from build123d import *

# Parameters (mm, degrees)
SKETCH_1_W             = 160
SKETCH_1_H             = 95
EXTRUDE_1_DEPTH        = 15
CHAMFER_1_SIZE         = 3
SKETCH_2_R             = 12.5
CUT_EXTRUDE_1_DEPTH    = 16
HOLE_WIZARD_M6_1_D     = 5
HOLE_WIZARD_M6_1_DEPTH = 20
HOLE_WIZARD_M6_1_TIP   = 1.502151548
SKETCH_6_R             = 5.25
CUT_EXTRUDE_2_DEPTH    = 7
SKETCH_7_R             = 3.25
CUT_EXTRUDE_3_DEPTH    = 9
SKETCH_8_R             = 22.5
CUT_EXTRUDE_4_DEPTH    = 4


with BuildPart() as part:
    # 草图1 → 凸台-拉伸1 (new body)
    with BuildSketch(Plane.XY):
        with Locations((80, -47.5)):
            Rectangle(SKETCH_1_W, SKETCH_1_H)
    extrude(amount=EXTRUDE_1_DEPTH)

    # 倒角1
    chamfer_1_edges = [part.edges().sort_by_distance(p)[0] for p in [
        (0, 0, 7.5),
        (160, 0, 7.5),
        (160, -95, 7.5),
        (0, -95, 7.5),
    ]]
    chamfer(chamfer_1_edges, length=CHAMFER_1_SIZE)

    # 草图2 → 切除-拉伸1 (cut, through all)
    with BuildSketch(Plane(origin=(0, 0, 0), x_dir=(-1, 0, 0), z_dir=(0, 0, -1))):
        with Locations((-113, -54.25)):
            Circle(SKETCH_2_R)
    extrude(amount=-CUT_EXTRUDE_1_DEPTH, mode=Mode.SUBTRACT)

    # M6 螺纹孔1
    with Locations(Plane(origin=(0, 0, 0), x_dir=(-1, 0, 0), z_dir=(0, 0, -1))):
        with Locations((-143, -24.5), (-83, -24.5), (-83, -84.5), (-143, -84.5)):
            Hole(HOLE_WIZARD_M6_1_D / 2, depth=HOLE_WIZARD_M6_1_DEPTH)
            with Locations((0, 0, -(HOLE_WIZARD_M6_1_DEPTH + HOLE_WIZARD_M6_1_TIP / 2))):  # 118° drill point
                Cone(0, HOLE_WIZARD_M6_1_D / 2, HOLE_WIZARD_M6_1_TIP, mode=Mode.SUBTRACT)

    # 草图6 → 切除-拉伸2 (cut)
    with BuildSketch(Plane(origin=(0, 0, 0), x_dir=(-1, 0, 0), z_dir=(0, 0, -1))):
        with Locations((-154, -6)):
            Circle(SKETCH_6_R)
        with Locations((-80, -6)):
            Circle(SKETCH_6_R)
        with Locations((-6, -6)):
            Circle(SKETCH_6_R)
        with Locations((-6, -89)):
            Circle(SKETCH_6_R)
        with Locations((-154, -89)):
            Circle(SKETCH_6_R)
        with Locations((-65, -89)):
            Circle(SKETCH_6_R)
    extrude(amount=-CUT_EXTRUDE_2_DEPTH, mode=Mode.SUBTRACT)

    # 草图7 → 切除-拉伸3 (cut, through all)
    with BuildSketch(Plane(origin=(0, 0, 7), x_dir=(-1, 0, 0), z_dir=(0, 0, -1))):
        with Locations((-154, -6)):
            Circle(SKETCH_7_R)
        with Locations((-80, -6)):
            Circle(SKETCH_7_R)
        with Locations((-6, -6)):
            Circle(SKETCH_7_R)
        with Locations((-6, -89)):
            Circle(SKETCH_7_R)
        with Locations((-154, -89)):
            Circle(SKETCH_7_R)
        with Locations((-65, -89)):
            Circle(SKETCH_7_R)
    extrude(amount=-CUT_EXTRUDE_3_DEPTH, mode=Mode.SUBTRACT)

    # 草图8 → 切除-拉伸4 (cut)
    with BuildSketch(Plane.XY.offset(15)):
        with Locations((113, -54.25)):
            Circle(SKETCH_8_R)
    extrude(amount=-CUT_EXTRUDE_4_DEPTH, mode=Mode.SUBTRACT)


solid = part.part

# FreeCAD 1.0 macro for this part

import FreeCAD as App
import Part
import Sketcher
from FreeCAD import Vector


def edges_at(feature, points):
    """Names of the edges that pass closest to the given points."""
    edges = feature.Shape.Edges
    near = lambda p: min(range(len(edges)), key=lambda i: edges[i].distToShape(Part.Vertex(*p))[0])
    return sorted({f"Edge{near(p) + 1}" for p in points})

doc = App.newDocument("Part")
body = doc.addObject("PartDesign::Body", "Body")

sketch1 = body.newObject("Sketcher::SketchObject", "Sketch")
sketch1.AttachmentSupport = (doc.getObject("XY_Plane"), [""])
sketch1.MapMode = "FlatFace"
sketch1.addGeometry(Part.LineSegment(Vector(0, 0, 0), Vector(0, -95, 0)), False)
sketch1.addGeometry(Part.LineSegment(Vector(0, -95, 0), Vector(160, -95, 0)), False)
sketch1.addGeometry(Part.LineSegment(Vector(160, -95, 0), Vector(160, 0, 0)), False)
sketch1.addGeometry(Part.LineSegment(Vector(160, 0, 0), Vector(0, 0, 0)), False)
sketch1.addConstraint(Sketcher.Constraint("Coincident", 0, 2, 1, 1))
sketch1.addConstraint(Sketcher.Constraint("Coincident", 1, 2, 2, 1))
sketch1.addConstraint(Sketcher.Constraint("Coincident", 2, 2, 3, 1))
sketch1.addConstraint(Sketcher.Constraint("Coincident", 3, 2, 0, 1))
sketch1.addConstraint(Sketcher.Constraint("Vertical", 0))
sketch1.addConstraint(Sketcher.Constraint("Horizontal", 1))
sketch1.addConstraint(Sketcher.Constraint("Vertical", 2))
sketch1.addConstraint(Sketcher.Constraint("Horizontal", 3))
sketch1.addConstraint(Sketcher.Constraint("Coincident", 3, 2, -1, 1))
sketch1.addConstraint(Sketcher.Constraint("DistanceX", 1, 1, 1, 2, 160.0))
sketch1.addConstraint(Sketcher.Constraint("DistanceY", 0, 2, 0, 1, 95.0))
pad1 = body.newObject("PartDesign::Pad", "Pad")
pad1.Profile = sketch1
pad1.Length = 15
doc.recompute()

chamfer = body.newObject("PartDesign::Chamfer", "Chamfer")
chamfer.Base = (pad1, edges_at(pad1, [
    (0, 0, 7.5),
    (160, 0, 7.5),
    (160, -95, 7.5),
    (0, -95, 7.5),
]))
chamfer.Size = 3

sketch2 = body.newObject("Sketcher::SketchObject", "Sketch001")
sketch2.AttachmentSupport = (doc.getObject("XY_Plane"), [""])
sketch2.MapMode = "FlatFace"
sketch2.addGeometry(Part.Circle(Vector(113, -54, 0), Vector(0, 0, 1), 12), False)
sketch2.addConstraint(Sketcher.Constraint("Diameter", 0, 25.0))
sketch2.addConstraint(Sketcher.Constraint("DistanceX", -1, 1, 0, 3, 113.0))
sketch2.addConstraint(Sketcher.Constraint("DistanceY", 0, 3, -1, 1, 54.25))
pocket1 = body.newObject("PartDesign::Pocket", "Pocket")
pocket1.Profile = sketch2
pocket1.Type = "ThroughAll"
pocket1.Reversed = True

sketch3 = body.newObject("Sketcher::SketchObject", "Sketch002")
sketch3.AttachmentSupport = (doc.getObject("XY_Plane"), [""])
sketch3.MapMode = "FlatFace"
sketch3.addGeometry(Part.Circle(Vector(143, -24.5, 0), Vector(0, 0, 1), 2.5), False)
sketch3.addGeometry(Part.Circle(Vector(83, -24.5, 0), Vector(0, 0, 1), 2.5), False)
sketch3.addGeometry(Part.Circle(Vector(83, -84.5, 0), Vector(0, 0, 1), 2.5), False)
sketch3.addGeometry(Part.Circle(Vector(143, -84.5, 0), Vector(0, 0, 1), 2.5), False)
sketch3.addConstraint(Sketcher.Constraint("Equal", 0, 1))
sketch3.addConstraint(Sketcher.Constraint("Equal", 1, 2))
sketch3.addConstraint(Sketcher.Constraint("Equal", 2, 3))
sketch3.addConstraint(Sketcher.Constraint("Horizontal", 0, 3, 1, 3))
sketch3.addConstraint(Sketcher.Constraint("Horizontal", 2, 3, 3, 3))
sketch3.addConstraint(Sketcher.Constraint("Vertical", 1, 3, 2, 3))
sketch3.addConstraint(Sketcher.Constraint("Vertical", 0, 3, 3, 3))
sketch3.addConstraint(Sketcher.Constraint("Diameter", 0, 5.0))
sketch3.addConstraint(Sketcher.Constraint("DistanceX", -1, 1, 0, 3, 143.0))
sketch3.addConstraint(Sketcher.Constraint("DistanceX", -1, 1, 1, 3, 83.0))
sketch3.addConstraint(Sketcher.Constraint("DistanceY", 2, 3, 1, 3, 60.0))
sketch3.addConstraint(Sketcher.Constraint("DistanceY", 0, 3, -1, 1, 24.5))
doc.recompute()
hole = body.newObject("PartDesign::Hole", "Hole")
hole.Profile = sketch3
hole.ThreadType = "None"
hole.Diameter = 5
hole.DepthType = "Dimension"
hole.Depth = 20
hole.DrillPoint = "Angled"
hole.DrillPointAngle = 118
hole.Reversed = True

sketch4 = body.newObject("Sketcher::SketchObject", "Sketch003")
sketch4.AttachmentSupport = (doc.getObject("XY_Plane"), [""])
sketch4.MapMode = "FlatFace"
sketch4.addGeometry(Part.Circle(Vector(154, -6, 0), Vector(0, 0, 1), 5), False)
sketch4.addGeometry(Part.Circle(Vector(80, -6, 0), Vector(0, 0, 1), 5), False)
sketch4.addGeometry(Part.Circle(Vector(6, -6, 0), Vector(0, 0, 1), 5), False)
sketch4.addGeometry(Part.Circle(Vector(6, -89, 0), Vector(0, 0, 1), 5), False)
sketch4.addGeometry(Part.Circle(Vector(154, -89, 0), Vector(0, 0, 1), 5), False)
sketch4.addGeometry(Part.Circle(Vector(65, -89, 0), Vector(0, 0, 1), 5), False)
sketch4.addConstraint(Sketcher.Constraint("Equal", 0, 1))
sketch4.addConstraint(Sketcher.Constraint("Equal", 1, 2))
sketch4.addConstraint(Sketcher.Constraint("Equal", 2, 3))
sketch4.addConstraint(Sketcher.Constraint("Equal", 3, 4))
sketch4.addConstraint(Sketcher.Constraint("Equal", 4, 5))
sketch4.addConstraint(Sketcher.Constraint("Horizontal", 0, 3, 1, 3))
sketch4.addConstraint(Sketcher.Constraint("Horizontal", 1, 3, 2, 3))
sketch4.addConstraint(Sketcher.Constraint("Horizontal", 3, 3, 4, 3))
sketch4.addConstraint(Sketcher.Constraint("Horizontal", 4, 3, 5, 3))
sketch4.addConstraint(Sketcher.Constraint("Vertical", 2, 3, 3, 3))
sketch4.addConstraint(Sketcher.Constraint("Vertical", 0, 3, 4, 3))
sketch4.addConstraint(Sketcher.Constraint("Diameter", 0, 10.5))
sketch4.addConstraint(Sketcher.Constraint("DistanceX", -1, 1, 0, 3, 154.0))
sketch4.addConstraint(Sketcher.Constraint("DistanceY", 0, 3, -1, 1, 6.0))
sketch4.addConstraint(Sketcher.Constraint("DistanceX", -1, 1, 1, 3, 80.0))
sketch4.addConstraint(Sketcher.Constraint("DistanceX", -1, 1, 2, 3, 6.0))
sketch4.addConstraint(Sketcher.Constraint("DistanceY", 3, 3, -1, 1, 89.0))
sketch4.addConstraint(Sketcher.Constraint("DistanceX", -1, 1, 5, 3, 65.0))
pocket2 = body.newObject("PartDesign::Pocket", "Pocket001")
pocket2.Profile = sketch4
pocket2.Length = 7
pocket2.Reversed = True

sketch5 = body.newObject("Sketcher::SketchObject", "Sketch004")
sketch5.AttachmentSupport = (doc.getObject("XY_Plane"), [""])
sketch5.MapMode = "FlatFace"
sketch5.AttachmentOffset = App.Placement(Vector(0, 0, 7), App.Rotation())
sketch5.addGeometry(Part.Circle(Vector(154, -6, 0), Vector(0, 0, 1), 3.2), False)
sketch5.addGeometry(Part.Circle(Vector(80, -6, 0), Vector(0, 0, 1), 3.2), False)
sketch5.addGeometry(Part.Circle(Vector(6, -6, 0), Vector(0, 0, 1), 3.2), False)
sketch5.addGeometry(Part.Circle(Vector(6, -89, 0), Vector(0, 0, 1), 3.2), False)
sketch5.addGeometry(Part.Circle(Vector(154, -89, 0), Vector(0, 0, 1), 3.2), False)
sketch5.addGeometry(Part.Circle(Vector(65, -89, 0), Vector(0, 0, 1), 3.2), False)
sketch5.addConstraint(Sketcher.Constraint("Equal", 0, 1))
sketch5.addConstraint(Sketcher.Constraint("Equal", 1, 2))
sketch5.addConstraint(Sketcher.Constraint("Equal", 2, 3))
sketch5.addConstraint(Sketcher.Constraint("Equal", 3, 4))
sketch5.addConstraint(Sketcher.Constraint("Equal", 4, 5))
sketch5.addConstraint(Sketcher.Constraint("Horizontal", 0, 3, 1, 3))
sketch5.addConstraint(Sketcher.Constraint("Horizontal", 1, 3, 2, 3))
sketch5.addConstraint(Sketcher.Constraint("Horizontal", 3, 3, 4, 3))
sketch5.addConstraint(Sketcher.Constraint("Horizontal", 4, 3, 5, 3))
sketch5.addConstraint(Sketcher.Constraint("Vertical", 2, 3, 3, 3))
sketch5.addConstraint(Sketcher.Constraint("Vertical", 0, 3, 4, 3))
sketch5.addConstraint(Sketcher.Constraint("Diameter", 0, 6.5))
sketch5.addConstraint(Sketcher.Constraint("DistanceX", -1, 1, 0, 3, 154.0))
sketch5.addConstraint(Sketcher.Constraint("DistanceY", 0, 3, -1, 1, 6.0))
sketch5.addConstraint(Sketcher.Constraint("DistanceX", -1, 1, 1, 3, 80.0))
sketch5.addConstraint(Sketcher.Constraint("DistanceX", -1, 1, 2, 3, 6.0))
sketch5.addConstraint(Sketcher.Constraint("DistanceY", 3, 3, -1, 1, 89.0))
sketch5.addConstraint(Sketcher.Constraint("DistanceX", -1, 1, 5, 3, 65.0))
pocket3 = body.newObject("PartDesign::Pocket", "Pocket002")
pocket3.Profile = sketch5
pocket3.Type = "ThroughAll"
pocket3.Reversed = True

sketch6 = body.newObject("Sketcher::SketchObject", "Sketch005")
sketch6.AttachmentSupport = (doc.getObject("XY_Plane"), [""])
sketch6.MapMode = "FlatFace"
sketch6.AttachmentOffset = App.Placement(Vector(0, 0, 15), App.Rotation())
sketch6.addGeometry(Part.Circle(Vector(113, -54, 0), Vector(0, 0, 1), 22), False)
sketch6.addConstraint(Sketcher.Constraint("Diameter", 0, 45.0))
sketch6.addConstraint(Sketcher.Constraint("DistanceX", -1, 1, 0, 3, 113.0))
sketch6.addConstraint(Sketcher.Constraint("DistanceY", 0, 3, -1, 1, 54.25))
pocket4 = body.newObject("PartDesign::Pocket", "Pocket003")
pocket4.Profile = sketch6
pocket4.Length = 4

doc.recompute()
